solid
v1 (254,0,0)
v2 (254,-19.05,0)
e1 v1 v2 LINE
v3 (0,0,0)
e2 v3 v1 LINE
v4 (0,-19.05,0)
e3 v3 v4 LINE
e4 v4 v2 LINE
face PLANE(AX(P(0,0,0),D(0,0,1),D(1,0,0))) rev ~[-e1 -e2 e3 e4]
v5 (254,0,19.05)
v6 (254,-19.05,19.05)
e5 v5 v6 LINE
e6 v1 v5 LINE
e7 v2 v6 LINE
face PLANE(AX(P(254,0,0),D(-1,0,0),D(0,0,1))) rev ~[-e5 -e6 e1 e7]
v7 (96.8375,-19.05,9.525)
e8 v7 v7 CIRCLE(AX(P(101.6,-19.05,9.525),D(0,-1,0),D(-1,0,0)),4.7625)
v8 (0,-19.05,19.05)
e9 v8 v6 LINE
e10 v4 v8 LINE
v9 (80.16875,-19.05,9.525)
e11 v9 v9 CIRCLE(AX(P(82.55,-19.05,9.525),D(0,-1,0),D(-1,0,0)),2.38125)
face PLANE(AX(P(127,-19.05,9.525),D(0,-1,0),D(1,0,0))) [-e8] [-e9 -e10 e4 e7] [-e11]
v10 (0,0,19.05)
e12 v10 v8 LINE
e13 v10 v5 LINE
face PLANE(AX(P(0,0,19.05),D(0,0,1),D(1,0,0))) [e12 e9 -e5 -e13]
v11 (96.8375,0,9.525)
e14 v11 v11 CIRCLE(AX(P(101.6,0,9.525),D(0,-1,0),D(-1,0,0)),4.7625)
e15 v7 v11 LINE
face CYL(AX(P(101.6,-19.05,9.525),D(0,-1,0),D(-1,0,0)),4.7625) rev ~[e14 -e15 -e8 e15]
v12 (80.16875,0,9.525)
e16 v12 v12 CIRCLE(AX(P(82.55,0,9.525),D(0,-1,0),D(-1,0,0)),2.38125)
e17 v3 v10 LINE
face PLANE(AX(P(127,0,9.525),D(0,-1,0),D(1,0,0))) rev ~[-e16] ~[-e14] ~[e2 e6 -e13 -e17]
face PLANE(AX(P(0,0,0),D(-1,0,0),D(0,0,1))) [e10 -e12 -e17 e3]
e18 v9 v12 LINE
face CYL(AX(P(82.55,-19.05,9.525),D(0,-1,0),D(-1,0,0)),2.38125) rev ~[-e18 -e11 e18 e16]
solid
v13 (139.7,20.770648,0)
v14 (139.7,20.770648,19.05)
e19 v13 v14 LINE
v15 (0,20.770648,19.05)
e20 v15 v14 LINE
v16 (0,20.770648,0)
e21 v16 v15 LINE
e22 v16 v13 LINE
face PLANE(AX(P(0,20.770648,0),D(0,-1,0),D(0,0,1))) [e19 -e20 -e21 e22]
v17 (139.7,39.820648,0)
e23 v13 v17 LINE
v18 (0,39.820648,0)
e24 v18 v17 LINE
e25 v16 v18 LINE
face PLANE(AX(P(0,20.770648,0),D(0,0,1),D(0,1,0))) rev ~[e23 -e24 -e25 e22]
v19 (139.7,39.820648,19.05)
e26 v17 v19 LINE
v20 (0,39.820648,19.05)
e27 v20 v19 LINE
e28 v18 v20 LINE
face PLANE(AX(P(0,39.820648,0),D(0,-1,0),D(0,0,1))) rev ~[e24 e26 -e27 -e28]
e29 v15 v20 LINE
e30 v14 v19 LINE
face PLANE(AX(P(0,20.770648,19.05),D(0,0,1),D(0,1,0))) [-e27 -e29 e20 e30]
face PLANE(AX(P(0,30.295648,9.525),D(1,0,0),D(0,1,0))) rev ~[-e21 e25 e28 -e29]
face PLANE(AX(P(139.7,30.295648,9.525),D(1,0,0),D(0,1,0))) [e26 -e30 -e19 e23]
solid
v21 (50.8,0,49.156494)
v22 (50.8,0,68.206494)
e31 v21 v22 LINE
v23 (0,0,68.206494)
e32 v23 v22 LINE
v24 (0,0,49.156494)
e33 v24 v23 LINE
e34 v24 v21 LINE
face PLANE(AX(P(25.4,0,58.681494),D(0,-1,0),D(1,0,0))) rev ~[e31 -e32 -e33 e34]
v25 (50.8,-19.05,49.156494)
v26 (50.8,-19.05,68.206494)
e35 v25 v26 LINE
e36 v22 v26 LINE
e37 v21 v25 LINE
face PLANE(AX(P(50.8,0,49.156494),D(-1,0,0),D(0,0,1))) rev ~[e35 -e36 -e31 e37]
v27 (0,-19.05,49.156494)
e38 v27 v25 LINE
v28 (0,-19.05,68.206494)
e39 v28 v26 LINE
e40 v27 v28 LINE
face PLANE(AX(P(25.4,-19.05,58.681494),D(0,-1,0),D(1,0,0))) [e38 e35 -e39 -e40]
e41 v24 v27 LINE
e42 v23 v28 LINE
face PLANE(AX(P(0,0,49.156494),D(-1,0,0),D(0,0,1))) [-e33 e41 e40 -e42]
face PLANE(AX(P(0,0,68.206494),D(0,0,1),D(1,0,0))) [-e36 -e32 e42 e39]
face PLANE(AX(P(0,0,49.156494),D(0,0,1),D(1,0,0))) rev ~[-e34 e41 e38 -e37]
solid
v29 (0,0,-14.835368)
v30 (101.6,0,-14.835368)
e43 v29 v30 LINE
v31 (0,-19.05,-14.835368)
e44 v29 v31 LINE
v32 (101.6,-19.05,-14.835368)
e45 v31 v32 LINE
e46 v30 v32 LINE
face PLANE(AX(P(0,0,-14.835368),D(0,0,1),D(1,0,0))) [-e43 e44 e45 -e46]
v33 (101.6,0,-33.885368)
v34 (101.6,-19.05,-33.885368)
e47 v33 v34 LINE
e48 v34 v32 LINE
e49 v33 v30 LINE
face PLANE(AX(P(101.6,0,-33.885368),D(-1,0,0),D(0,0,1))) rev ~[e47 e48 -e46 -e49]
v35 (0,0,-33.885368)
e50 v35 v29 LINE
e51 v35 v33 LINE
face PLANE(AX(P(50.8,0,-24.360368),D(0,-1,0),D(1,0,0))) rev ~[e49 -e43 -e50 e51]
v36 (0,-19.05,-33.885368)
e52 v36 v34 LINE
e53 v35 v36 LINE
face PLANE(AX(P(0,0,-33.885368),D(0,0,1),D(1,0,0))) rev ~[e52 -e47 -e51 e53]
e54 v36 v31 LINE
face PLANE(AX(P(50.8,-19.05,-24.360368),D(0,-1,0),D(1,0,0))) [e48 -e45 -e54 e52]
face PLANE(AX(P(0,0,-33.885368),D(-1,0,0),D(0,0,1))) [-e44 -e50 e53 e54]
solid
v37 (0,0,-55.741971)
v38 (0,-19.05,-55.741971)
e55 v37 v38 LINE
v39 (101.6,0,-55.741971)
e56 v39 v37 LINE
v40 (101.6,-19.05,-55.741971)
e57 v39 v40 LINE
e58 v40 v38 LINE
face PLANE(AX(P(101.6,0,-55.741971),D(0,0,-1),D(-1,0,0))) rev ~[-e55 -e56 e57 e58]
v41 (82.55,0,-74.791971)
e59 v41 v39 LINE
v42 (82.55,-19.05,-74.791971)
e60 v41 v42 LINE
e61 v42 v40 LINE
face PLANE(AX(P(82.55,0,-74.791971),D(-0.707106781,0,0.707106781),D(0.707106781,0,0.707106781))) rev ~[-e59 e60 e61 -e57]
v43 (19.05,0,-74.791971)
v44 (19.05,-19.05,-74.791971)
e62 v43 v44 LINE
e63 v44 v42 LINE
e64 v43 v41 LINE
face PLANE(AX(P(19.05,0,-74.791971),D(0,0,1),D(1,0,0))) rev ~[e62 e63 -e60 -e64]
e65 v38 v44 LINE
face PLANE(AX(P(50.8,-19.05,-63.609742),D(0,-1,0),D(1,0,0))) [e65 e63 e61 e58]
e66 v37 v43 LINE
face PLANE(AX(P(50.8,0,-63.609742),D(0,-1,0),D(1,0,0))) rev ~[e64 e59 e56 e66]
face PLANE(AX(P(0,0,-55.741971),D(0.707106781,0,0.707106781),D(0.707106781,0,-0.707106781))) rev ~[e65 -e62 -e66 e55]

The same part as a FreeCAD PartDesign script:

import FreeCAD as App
import Part
import Sketcher
from FreeCAD import Vector
Q = App.Units.Quantity


def add_polygon(sketch, points):
    """Adds a closed chain of lines whose ends are joined by coincident constraints."""
    first, n = sketch.GeometryCount, len(points)
    for a, b in zip(points, points[1:] + points[:1]):
        sketch.addGeometry(Part.LineSegment(App.Vector(*a, 0), App.Vector(*b, 0)), False)
    for i in range(n):
        sketch.addConstraint(Sketcher.Constraint("Coincident", first + i, 2, first + (i + 1) % n, 1))

doc = App.newDocument("Part")
body = doc.addObject("PartDesign::Body", "Body")

# Sketch on XZ plane
sketch1 = body.newObject("Sketcher::SketchObject", "Sketch")
sketch1.AttachmentSupport = (doc.getObject("XZ_Plane"), [""])
sketch1.MapMode = "FlatFace"
add_polygon(sketch1, [(0, 19), (0, 0), (254, 0), (254, 19)])  # lines 0-3
sketch1.addConstraint([
    Sketcher.Constraint("Vertical", 0),
    Sketcher.Constraint("Horizontal", 1),
    Sketcher.Constraint("Vertical", 2),
    Sketcher.Constraint("Horizontal", 3),
    Sketcher.Constraint("Coincident", 0, 2, -1, 1),
    Sketcher.Constraint("DistanceX", 1, 1, 1, 2, Q("10 in")),
    Sketcher.Constraint("DistanceY", 0, 2, 0, 1, Q("0.75 in")),
])
pad1 = body.newObject("PartDesign::Pad", "Pad")
pad1.Profile = sketch1
pad1.Length = Q("0.75 in")

# Sketch on XZ plane
sketch2 = body.newObject("Sketcher::SketchObject", "Sketch001")
sketch2.AttachmentSupport = (doc.getObject("XZ_Plane"), [""])
sketch2.MapMode = "FlatFace"
sketch2.AttachmentOffset = App.Placement(Vector(0, 0, 0.75 * 25.4), App.Rotation())
sketch2.addGeometry([
    Part.Circle(Vector(82.5, 9.5, 0), Vector(0, 0, 1), 2.4),
    Part.Circle(Vector(101.6, 9.5, 0), Vector(0, 0, 1), 4.8),
], False)
sketch2.addConstraint([
    Sketcher.Constraint("Horizontal", 0, 3, 1, 3),
    Sketcher.Constraint("Diameter", 0, Q("0.1875 in")),
    Sketcher.Constraint("Diameter", 1, Q("0.375 in")),
    Sketcher.Constraint("DistanceX", -1, 1, 1, 3, Q("4 in")),
    Sketcher.Constraint("DistanceX", -1, 1, 0, 3, Q("3.25 in")),
    Sketcher.Constraint("DistanceY", -1, 1, 0, 3, Q("0.375 in")),
])
pocket1 = body.newObject("PartDesign::Pocket", "Pocket")
pocket1.Profile = sketch2
pocket1.Length = Q("1 in")
body2 = doc.addObject("PartDesign::Body", "Body001")

# Sketch on XZ plane
sketch3 = body2.newObject("Sketcher::SketchObject", "Sketch002")
sketch3.AttachmentSupport = (doc.getObject("XZ_Plane001"), [""])
sketch3.MapMode = "FlatFace"
add_polygon(sketch3, [(0, -15), (0, -34), (102, -34), (102, -15)])  # lines 0-3
sketch3.addConstraint([
    Sketcher.Constraint("Vertical", 0),
    Sketcher.Constraint("Horizontal", 1),
    Sketcher.Constraint("Vertical", 2),
    Sketcher.Constraint("Horizontal", 3),
    Sketcher.Constraint("PointOnObject", 0, 2, -2),
    Sketcher.Constraint("DistanceX", 1, 1, 1, 2, Q("4 in")),
    Sketcher.Constraint("DistanceY", 0, 2, 0, 1, Q("0.75 in")),
    Sketcher.Constraint("DistanceY", 2, 2, -1, 1, Q("14.835368 mm")),
])
pad2 = body2.newObject("PartDesign::Pad", "Pad001")
pad2.Profile = sketch3
pad2.Length = Q("0.75 in")
body3 = doc.addObject("PartDesign::Body", "Body002")

# Sketch on XZ plane
sketch4 = body3.newObject("Sketcher::SketchObject", "Sketch003")
sketch4.AttachmentSupport = (doc.getObject("XZ_Plane002"), [""])
sketch4.MapMode = "FlatFace"
add_polygon(sketch4, [(102, -56), (0, -56), (19, -75), (83, -75)])  # lines 0-3
sketch4.addConstraint([
    Sketcher.Constraint("Horizontal", 0),
    Sketcher.Constraint("Horizontal", 2),
    Sketcher.Constraint("PointOnObject", 0, 2, -2),
    Sketcher.Constraint("Perpendicular", 1, 3),
    Sketcher.Constraint("Equal", 1, 3),
    Sketcher.Constraint("DistanceX", 0, 2, 0, 1, Q("4 in")),
    Sketcher.Constraint("DistanceX", 2, 1, 2, 2, Q("2.5 in")),
    Sketcher.Constraint("DistanceY", 0, 2, -1, 1, Q("55.741971 mm")),
])
pad3 = body3.newObject("PartDesign::Pad", "Pad002")
pad3.Profile = sketch4
pad3.Length = Q("0.75 in")
body4 = doc.addObject("PartDesign::Body", "Body003")

# Sketch on XZ plane
sketch5 = body4.newObject("Sketcher::SketchObject", "Sketch004")
sketch5.AttachmentSupport = (doc.getObject("XZ_Plane003"), [""])
sketch5.MapMode = "FlatFace"
add_polygon(sketch5, [(0, 68), (0, 49), (51, 49), (51, 68)])  # lines 0-3
sketch5.addConstraint([
    Sketcher.Constraint("Vertical", 0),
    Sketcher.Constraint("Horizontal", 1),
    Sketcher.Constraint("Vertical", 2),
    Sketcher.Constraint("Horizontal", 3),
    Sketcher.Constraint("PointOnObject", 0, 2, -2),
    Sketcher.Constraint("DistanceX", 1, 1, 1, 2, Q("2 in")),
    Sketcher.Constraint("DistanceY", 0, 2, 0, 1, Q("0.75 in")),
    Sketcher.Constraint("DistanceY", -1, 1, 0, 2, Q("49.156494 mm")),
])
pad4 = body4.newObject("PartDesign::Pad", "Pad003")
pad4.Profile = sketch5
pad4.Length = Q("0.75 in")
body5 = doc.addObject("PartDesign::Body", "Body004")

# Sketch on YZ plane
sketch6 = body5.newObject("Sketcher::SketchObject", "Sketch005")
sketch6.AttachmentSupport = (doc.getObject("YZ_Plane004"), [""])
sketch6.MapMode = "FlatFace"
add_polygon(sketch6, [(21, 19), (21, 0), (40, 0), (40, 19)])  # lines 0-3
sketch6.addConstraint([
    Sketcher.Constraint("Vertical", 0),
    Sketcher.Constraint("Horizontal", 1),
    Sketcher.Constraint("Vertical", 2),
    Sketcher.Constraint("Horizontal", 3),
    Sketcher.Constraint("PointOnObject", 0, 2, -1),
    Sketcher.Constraint("Equal", 3, 0),
    Sketcher.Constraint("DistanceX", 1, 1, 1, 2, Q("0.75 in")),
    Sketcher.Constraint("DistanceX", -1, 1, 0, 2, Q("20.770648 mm")),
])
pad5 = body5.newObject("PartDesign::Pad", "Pad004")
pad5.Profile = sketch6
pad5.Length = Q("5.5 in")

doc.recompute()
